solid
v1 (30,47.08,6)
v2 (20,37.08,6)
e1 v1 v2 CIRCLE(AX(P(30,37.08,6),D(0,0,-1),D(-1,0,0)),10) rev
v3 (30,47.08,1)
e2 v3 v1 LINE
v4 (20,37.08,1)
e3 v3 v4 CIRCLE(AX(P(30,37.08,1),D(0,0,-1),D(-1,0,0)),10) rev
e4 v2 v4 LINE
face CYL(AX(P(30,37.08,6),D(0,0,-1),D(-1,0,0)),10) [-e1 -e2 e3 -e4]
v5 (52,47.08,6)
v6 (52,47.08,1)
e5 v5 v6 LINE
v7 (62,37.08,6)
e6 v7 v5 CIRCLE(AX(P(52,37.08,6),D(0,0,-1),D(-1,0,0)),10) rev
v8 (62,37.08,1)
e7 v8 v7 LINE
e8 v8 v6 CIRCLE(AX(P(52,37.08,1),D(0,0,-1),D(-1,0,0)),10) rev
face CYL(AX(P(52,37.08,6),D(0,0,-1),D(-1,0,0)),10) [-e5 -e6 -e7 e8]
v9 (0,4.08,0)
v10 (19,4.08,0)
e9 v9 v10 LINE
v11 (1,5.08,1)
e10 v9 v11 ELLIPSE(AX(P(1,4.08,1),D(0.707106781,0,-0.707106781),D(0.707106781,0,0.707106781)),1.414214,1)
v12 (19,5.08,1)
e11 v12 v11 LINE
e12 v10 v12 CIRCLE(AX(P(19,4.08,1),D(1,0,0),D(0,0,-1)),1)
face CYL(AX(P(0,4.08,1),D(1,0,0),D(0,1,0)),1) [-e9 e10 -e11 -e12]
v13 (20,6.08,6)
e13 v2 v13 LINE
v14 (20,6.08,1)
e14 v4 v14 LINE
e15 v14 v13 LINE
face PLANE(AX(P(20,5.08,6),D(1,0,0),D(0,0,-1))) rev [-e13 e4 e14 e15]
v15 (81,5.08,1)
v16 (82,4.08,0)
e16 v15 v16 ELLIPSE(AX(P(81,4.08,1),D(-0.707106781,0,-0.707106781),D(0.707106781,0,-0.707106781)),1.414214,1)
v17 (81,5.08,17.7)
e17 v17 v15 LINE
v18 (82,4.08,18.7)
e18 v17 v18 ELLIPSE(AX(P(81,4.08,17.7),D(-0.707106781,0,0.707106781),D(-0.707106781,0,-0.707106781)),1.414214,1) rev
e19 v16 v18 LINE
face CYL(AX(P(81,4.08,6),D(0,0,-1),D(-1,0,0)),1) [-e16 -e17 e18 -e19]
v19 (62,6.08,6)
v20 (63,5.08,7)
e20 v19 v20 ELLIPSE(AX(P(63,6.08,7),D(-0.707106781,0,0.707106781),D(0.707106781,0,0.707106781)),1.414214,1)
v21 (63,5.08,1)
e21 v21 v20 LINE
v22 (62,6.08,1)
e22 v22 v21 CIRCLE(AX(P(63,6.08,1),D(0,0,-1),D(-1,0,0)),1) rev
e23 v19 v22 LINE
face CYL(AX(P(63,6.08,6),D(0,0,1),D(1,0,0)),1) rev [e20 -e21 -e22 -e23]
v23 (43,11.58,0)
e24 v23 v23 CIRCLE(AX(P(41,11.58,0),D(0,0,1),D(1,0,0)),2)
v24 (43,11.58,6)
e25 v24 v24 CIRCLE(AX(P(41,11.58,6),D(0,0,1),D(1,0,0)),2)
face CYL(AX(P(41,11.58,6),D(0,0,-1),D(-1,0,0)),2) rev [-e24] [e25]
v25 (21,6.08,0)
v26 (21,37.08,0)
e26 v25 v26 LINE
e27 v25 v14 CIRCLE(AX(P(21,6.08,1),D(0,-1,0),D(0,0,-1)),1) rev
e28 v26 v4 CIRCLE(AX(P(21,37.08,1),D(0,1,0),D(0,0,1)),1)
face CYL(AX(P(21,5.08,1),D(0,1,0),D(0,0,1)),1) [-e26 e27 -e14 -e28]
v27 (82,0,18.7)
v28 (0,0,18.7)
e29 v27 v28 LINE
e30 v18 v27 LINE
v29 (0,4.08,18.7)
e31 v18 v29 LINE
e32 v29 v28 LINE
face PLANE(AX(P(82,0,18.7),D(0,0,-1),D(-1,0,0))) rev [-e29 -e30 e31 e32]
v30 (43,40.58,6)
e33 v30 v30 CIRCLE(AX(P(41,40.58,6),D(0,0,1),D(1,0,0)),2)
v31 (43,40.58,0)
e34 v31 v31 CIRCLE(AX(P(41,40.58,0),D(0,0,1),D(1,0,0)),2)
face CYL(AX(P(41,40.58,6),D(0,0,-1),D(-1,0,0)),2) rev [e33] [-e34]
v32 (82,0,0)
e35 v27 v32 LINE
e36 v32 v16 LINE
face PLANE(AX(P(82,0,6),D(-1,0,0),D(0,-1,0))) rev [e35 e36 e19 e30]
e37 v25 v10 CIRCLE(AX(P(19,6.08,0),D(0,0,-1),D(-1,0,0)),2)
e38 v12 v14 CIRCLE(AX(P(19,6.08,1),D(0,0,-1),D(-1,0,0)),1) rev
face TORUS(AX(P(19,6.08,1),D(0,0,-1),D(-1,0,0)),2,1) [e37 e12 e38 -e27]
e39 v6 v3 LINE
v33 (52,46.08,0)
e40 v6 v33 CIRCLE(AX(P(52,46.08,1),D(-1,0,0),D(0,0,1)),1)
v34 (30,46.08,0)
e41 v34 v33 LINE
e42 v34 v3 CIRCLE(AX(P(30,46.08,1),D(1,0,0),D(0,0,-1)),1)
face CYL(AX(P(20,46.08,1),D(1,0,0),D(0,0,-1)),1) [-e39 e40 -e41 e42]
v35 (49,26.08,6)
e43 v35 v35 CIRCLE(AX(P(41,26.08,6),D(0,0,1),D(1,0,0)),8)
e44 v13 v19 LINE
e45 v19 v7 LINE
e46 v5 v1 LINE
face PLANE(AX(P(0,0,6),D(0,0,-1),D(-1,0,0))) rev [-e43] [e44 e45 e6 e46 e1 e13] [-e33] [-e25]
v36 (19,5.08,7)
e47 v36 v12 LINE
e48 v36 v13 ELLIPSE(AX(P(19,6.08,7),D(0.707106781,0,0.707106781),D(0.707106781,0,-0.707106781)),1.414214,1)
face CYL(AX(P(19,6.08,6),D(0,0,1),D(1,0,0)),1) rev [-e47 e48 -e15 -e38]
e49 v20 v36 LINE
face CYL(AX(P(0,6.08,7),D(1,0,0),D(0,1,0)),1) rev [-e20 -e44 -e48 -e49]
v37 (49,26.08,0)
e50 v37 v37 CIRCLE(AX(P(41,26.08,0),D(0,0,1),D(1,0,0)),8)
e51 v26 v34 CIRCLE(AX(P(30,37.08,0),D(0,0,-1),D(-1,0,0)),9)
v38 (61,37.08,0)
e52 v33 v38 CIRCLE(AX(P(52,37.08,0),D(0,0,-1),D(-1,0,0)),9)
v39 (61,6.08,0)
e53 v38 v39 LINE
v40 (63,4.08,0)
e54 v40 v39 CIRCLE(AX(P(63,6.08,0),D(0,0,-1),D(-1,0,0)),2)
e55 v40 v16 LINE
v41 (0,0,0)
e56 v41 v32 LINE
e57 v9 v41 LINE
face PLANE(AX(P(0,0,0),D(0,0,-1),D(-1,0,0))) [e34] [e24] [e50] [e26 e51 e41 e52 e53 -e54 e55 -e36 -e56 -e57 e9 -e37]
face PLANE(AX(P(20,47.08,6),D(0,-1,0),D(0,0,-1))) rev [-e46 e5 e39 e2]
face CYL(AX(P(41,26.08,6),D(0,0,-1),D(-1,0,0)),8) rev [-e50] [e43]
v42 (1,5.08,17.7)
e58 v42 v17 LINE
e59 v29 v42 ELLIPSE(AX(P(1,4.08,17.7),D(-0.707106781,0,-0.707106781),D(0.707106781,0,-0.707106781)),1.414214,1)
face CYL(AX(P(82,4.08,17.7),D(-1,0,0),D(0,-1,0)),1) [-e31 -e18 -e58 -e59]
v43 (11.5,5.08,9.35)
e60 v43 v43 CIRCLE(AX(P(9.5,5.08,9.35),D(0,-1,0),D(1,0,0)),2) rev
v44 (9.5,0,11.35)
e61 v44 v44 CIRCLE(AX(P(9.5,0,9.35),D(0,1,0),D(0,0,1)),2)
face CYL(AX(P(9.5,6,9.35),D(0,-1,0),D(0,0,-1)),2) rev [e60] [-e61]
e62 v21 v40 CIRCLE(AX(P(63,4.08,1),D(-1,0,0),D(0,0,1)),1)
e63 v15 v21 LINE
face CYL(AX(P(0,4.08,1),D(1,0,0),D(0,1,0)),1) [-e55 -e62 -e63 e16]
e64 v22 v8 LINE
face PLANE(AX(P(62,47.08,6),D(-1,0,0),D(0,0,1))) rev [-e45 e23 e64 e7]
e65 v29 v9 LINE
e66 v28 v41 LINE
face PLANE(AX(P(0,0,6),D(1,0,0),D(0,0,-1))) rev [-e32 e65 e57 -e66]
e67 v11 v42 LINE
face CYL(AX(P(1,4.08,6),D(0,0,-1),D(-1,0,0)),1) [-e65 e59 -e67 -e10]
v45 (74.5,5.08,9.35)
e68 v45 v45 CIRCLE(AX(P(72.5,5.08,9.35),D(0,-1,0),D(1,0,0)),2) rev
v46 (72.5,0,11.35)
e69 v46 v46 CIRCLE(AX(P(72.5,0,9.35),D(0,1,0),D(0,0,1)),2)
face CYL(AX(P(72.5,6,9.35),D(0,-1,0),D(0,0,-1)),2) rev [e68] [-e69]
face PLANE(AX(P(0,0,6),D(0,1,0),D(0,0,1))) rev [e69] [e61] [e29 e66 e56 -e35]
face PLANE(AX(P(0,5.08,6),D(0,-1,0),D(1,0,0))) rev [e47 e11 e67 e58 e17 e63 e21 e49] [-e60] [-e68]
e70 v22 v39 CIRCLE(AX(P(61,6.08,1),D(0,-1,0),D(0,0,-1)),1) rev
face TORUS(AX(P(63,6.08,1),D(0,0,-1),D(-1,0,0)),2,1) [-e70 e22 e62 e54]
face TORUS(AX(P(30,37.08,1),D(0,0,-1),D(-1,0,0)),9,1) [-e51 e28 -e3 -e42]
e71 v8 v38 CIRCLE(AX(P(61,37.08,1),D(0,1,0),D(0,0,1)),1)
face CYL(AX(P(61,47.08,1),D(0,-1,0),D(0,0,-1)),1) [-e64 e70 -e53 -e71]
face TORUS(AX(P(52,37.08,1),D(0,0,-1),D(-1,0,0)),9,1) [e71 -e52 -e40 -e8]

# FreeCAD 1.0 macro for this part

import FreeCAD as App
import Part
import Sketcher


def edges_at(feature, points):
    """Names of the edges that pass closest to the given points."""
    edges = feature.Shape.Edges
    near = lambda p: min(range(len(edges)), key=lambda i: edges[i].distToShape(Part.Vertex(*p))[0])
    return sorted({f"Edge{near(p) + 1}" for p in points})

doc = App.newDocument("Part")
body = doc.addObject("PartDesign::Body", "Body")

sketch1 = body.newObject("Sketcher::SketchObject", "Sketch")
sketch1.AttachmentSupport = (doc.getObject("XY_Plane"), [""])
sketch1.MapMode = "FlatFace"
sketch1.addGeometry([
    Part.LineSegment(App.Vector(0, 0, 0), App.Vector(82, 0, 0)),
    Part.LineSegment(App.Vector(82, 0, 0), App.Vector(82, 5.1, 0)),
    Part.LineSegment(App.Vector(82, 5.1, 0), App.Vector(62, 5.1, 0)),
    Part.LineSegment(App.Vector(62, 5.1, 0), App.Vector(62, 47.1, 0)),
    Part.LineSegment(App.Vector(62, 47.1, 0), App.Vector(20, 47.1, 0)),
    Part.LineSegment(App.Vector(20, 47.1, 0), App.Vector(20, 5.1, 0)),
    Part.LineSegment(App.Vector(20, 5.1, 0), App.Vector(0, 5.1, 0)),
    Part.LineSegment(App.Vector(0, 5.1, 0), App.Vector(0, 0, 0)),
    Part.Circle(App.Vector(41, 11.6, 0), App.Vector(0, 0, 1), 2),
    Part.Circle(App.Vector(41, 26.1, 0), App.Vector(0, 0, 1), 8),
    Part.Circle(App.Vector(41, 40.6, 0), App.Vector(0, 0, 1), 2),
], False)
sketch1.addConstraint([
    Sketcher.Constraint("Coincident", 0, 2, 1, 1),
    Sketcher.Constraint("Coincident", 1, 2, 2, 1),
    Sketcher.Constraint("Coincident", 2, 2, 3, 1),
    Sketcher.Constraint("Coincident", 3, 2, 4, 1),
    Sketcher.Constraint("Coincident", 4, 2, 5, 1),
    Sketcher.Constraint("Coincident", 5, 2, 6, 1),
    Sketcher.Constraint("Coincident", 6, 2, 7, 1),
    Sketcher.Constraint("Coincident", 7, 2, 0, 1),
    Sketcher.Constraint("Horizontal", 0),
    Sketcher.Constraint("Vertical", 1),
    Sketcher.Constraint("Horizontal", 2),
    Sketcher.Constraint("Vertical", 3),
    Sketcher.Constraint("Horizontal", 4),
    Sketcher.Constraint("Vertical", 5),
    Sketcher.Constraint("Horizontal", 6),
    Sketcher.Constraint("Vertical", 7),
    Sketcher.Constraint("Coincident", 7, 2, -1, 1),
    Sketcher.Constraint("Equal", 8, 10),
    Sketcher.Constraint("Horizontal", 2, 2, 5, 2),
    Sketcher.Constraint("Vertical", 8, 3, 9, 3),
    Sketcher.Constraint("Vertical", 9, 3, 10, 3),
    Sketcher.Constraint("Equal", 2, 6),
    Sketcher.Constraint("Equal", 4, 3),
    Sketcher.Constraint("Diameter", 8, 4.0),
    Sketcher.Constraint("Diameter", 9, 16.0),
    Sketcher.Constraint("DistanceX", 0, 1, 0, 2, 82.0),
    Sketcher.Constraint("DistanceX", 2, 2, 2, 1, 20.0),
    Sketcher.Constraint("DistanceX", -1, 1, 8, 3, 41.0),
    Sketcher.Constraint("DistanceY", 8, 3, 10, 3, 29.0),
    Sketcher.Constraint("DistanceY", 1, 2, 9, 3, 21.0),
    Sketcher.Constraint("DistanceY", 1, 1, 1, 2, 5.08),
    Sketcher.Constraint("DistanceY", 8, 3, 9, 3, 14.5),
])
pad1 = body.newObject("PartDesign::Pad", "Pad")
pad1.Profile = sketch1
pad1.Length = 6

sketch2 = body.newObject("Sketcher::SketchObject", "Sketch001")
sketch2.AttachmentSupport = (doc.getObject("YZ_Plane"), [""])
sketch2.MapMode = "FlatFace"
sketch2.addGeometry([
    Part.LineSegment(App.Vector(5, 19, 0), App.Vector(0, 19, 0)),
    Part.LineSegment(App.Vector(0, 19, 0), App.Vector(0, 6, 0)),
    Part.LineSegment(App.Vector(0, 6, 0), App.Vector(5, 6, 0)),
    Part.LineSegment(App.Vector(5, 6, 0), App.Vector(5, 19, 0)),
], False)
sketch2.addConstraint([
    Sketcher.Constraint("Coincident", 0, 2, 1, 1),
    Sketcher.Constraint("Coincident", 1, 2, 2, 1),
    Sketcher.Constraint("Coincident", 2, 2, 3, 1),
    Sketcher.Constraint("Coincident", 3, 2, 0, 1),
    Sketcher.Constraint("Horizontal", 0),
    Sketcher.Constraint("Vertical", 1),
    Sketcher.Constraint("Horizontal", 2),
    Sketcher.Constraint("Vertical", 3),
    Sketcher.Constraint("PointOnObject", 0, 2, -2),
    Sketcher.Constraint("DistanceY", 1, 2, 1, 1, 12.7),
    Sketcher.Constraint("DistanceY", -1, 1, 1, 2, 6.0),
    Sketcher.Constraint("DistanceX", 0, 2, 0, 1, 5.08),
])
pad2 = body.newObject("PartDesign::Pad", "Pad001")
pad2.Profile = sketch2
pad2.Length = 82
doc.recompute()

fillet = body.newObject("PartDesign::Fillet", "Fillet")
fillet.Base = (pad2, edges_at(pad2, [(20, 47.08, 3)]))
fillet.Radius = 10
doc.recompute()

fillet2 = body.newObject("PartDesign::Fillet", "Fillet001")
fillet2.Base = (fillet, edges_at(fillet, [(62, 47.08, 3)]))
fillet2.Radius = 10
doc.recompute()

fillet3 = body.newObject("PartDesign::Fillet", "Fillet002")
fillet3.Base = (fillet2, edges_at(fillet2, [
    (0, 5.08, 9.35),
    (20, 5.08, 3),
    (62, 5.08, 3),
    (82, 5.08, 9.35),
    (41, 5.08, 6),
    (41, 5.08, 18.7),
    (20, 21.08, 0),
    (22.929, 44.151, 0),
    (41, 47.08, 0),
    (59.071, 44.151, 0),
    (10, 5.08, 0),
    (62, 21.08, 0),
    (72, 5.08, 0),
]))
fillet3.Radius = 1

sketch3 = body.newObject("Sketcher::SketchObject", "Sketch002")
sketch3.AttachmentSupport = (doc.getObject("XZ_Plane"), [""])
sketch3.MapMode = "FlatFace"
sketch3.addGeometry([
    Part.Circle(App.Vector(9.5, 9.3, 0), App.Vector(0, 0, 1), 2),
    Part.Circle(App.Vector(72.5, 9.3, 0), App.Vector(0, 0, 1), 2),
], False)
sketch3.addConstraint([
    Sketcher.Constraint("Equal", 0, 1),
    Sketcher.Constraint("Horizontal", 0, 3, 1, 3),
    Sketcher.Constraint("Diameter", 0, 4.0),
    Sketcher.Constraint("DistanceX", 0, 3, 1, 3, 63.0),
    Sketcher.Constraint("DistanceX", -1, 1, 0, 3, 9.5),
    Sketcher.Constraint("DistanceY", -1, 1, 0, 3, 9.35),
])
pocket1 = body.newObject("PartDesign::Pocket", "Pocket")
pocket1.Profile = sketch3
pocket1.Length = 6

doc.recompute()
